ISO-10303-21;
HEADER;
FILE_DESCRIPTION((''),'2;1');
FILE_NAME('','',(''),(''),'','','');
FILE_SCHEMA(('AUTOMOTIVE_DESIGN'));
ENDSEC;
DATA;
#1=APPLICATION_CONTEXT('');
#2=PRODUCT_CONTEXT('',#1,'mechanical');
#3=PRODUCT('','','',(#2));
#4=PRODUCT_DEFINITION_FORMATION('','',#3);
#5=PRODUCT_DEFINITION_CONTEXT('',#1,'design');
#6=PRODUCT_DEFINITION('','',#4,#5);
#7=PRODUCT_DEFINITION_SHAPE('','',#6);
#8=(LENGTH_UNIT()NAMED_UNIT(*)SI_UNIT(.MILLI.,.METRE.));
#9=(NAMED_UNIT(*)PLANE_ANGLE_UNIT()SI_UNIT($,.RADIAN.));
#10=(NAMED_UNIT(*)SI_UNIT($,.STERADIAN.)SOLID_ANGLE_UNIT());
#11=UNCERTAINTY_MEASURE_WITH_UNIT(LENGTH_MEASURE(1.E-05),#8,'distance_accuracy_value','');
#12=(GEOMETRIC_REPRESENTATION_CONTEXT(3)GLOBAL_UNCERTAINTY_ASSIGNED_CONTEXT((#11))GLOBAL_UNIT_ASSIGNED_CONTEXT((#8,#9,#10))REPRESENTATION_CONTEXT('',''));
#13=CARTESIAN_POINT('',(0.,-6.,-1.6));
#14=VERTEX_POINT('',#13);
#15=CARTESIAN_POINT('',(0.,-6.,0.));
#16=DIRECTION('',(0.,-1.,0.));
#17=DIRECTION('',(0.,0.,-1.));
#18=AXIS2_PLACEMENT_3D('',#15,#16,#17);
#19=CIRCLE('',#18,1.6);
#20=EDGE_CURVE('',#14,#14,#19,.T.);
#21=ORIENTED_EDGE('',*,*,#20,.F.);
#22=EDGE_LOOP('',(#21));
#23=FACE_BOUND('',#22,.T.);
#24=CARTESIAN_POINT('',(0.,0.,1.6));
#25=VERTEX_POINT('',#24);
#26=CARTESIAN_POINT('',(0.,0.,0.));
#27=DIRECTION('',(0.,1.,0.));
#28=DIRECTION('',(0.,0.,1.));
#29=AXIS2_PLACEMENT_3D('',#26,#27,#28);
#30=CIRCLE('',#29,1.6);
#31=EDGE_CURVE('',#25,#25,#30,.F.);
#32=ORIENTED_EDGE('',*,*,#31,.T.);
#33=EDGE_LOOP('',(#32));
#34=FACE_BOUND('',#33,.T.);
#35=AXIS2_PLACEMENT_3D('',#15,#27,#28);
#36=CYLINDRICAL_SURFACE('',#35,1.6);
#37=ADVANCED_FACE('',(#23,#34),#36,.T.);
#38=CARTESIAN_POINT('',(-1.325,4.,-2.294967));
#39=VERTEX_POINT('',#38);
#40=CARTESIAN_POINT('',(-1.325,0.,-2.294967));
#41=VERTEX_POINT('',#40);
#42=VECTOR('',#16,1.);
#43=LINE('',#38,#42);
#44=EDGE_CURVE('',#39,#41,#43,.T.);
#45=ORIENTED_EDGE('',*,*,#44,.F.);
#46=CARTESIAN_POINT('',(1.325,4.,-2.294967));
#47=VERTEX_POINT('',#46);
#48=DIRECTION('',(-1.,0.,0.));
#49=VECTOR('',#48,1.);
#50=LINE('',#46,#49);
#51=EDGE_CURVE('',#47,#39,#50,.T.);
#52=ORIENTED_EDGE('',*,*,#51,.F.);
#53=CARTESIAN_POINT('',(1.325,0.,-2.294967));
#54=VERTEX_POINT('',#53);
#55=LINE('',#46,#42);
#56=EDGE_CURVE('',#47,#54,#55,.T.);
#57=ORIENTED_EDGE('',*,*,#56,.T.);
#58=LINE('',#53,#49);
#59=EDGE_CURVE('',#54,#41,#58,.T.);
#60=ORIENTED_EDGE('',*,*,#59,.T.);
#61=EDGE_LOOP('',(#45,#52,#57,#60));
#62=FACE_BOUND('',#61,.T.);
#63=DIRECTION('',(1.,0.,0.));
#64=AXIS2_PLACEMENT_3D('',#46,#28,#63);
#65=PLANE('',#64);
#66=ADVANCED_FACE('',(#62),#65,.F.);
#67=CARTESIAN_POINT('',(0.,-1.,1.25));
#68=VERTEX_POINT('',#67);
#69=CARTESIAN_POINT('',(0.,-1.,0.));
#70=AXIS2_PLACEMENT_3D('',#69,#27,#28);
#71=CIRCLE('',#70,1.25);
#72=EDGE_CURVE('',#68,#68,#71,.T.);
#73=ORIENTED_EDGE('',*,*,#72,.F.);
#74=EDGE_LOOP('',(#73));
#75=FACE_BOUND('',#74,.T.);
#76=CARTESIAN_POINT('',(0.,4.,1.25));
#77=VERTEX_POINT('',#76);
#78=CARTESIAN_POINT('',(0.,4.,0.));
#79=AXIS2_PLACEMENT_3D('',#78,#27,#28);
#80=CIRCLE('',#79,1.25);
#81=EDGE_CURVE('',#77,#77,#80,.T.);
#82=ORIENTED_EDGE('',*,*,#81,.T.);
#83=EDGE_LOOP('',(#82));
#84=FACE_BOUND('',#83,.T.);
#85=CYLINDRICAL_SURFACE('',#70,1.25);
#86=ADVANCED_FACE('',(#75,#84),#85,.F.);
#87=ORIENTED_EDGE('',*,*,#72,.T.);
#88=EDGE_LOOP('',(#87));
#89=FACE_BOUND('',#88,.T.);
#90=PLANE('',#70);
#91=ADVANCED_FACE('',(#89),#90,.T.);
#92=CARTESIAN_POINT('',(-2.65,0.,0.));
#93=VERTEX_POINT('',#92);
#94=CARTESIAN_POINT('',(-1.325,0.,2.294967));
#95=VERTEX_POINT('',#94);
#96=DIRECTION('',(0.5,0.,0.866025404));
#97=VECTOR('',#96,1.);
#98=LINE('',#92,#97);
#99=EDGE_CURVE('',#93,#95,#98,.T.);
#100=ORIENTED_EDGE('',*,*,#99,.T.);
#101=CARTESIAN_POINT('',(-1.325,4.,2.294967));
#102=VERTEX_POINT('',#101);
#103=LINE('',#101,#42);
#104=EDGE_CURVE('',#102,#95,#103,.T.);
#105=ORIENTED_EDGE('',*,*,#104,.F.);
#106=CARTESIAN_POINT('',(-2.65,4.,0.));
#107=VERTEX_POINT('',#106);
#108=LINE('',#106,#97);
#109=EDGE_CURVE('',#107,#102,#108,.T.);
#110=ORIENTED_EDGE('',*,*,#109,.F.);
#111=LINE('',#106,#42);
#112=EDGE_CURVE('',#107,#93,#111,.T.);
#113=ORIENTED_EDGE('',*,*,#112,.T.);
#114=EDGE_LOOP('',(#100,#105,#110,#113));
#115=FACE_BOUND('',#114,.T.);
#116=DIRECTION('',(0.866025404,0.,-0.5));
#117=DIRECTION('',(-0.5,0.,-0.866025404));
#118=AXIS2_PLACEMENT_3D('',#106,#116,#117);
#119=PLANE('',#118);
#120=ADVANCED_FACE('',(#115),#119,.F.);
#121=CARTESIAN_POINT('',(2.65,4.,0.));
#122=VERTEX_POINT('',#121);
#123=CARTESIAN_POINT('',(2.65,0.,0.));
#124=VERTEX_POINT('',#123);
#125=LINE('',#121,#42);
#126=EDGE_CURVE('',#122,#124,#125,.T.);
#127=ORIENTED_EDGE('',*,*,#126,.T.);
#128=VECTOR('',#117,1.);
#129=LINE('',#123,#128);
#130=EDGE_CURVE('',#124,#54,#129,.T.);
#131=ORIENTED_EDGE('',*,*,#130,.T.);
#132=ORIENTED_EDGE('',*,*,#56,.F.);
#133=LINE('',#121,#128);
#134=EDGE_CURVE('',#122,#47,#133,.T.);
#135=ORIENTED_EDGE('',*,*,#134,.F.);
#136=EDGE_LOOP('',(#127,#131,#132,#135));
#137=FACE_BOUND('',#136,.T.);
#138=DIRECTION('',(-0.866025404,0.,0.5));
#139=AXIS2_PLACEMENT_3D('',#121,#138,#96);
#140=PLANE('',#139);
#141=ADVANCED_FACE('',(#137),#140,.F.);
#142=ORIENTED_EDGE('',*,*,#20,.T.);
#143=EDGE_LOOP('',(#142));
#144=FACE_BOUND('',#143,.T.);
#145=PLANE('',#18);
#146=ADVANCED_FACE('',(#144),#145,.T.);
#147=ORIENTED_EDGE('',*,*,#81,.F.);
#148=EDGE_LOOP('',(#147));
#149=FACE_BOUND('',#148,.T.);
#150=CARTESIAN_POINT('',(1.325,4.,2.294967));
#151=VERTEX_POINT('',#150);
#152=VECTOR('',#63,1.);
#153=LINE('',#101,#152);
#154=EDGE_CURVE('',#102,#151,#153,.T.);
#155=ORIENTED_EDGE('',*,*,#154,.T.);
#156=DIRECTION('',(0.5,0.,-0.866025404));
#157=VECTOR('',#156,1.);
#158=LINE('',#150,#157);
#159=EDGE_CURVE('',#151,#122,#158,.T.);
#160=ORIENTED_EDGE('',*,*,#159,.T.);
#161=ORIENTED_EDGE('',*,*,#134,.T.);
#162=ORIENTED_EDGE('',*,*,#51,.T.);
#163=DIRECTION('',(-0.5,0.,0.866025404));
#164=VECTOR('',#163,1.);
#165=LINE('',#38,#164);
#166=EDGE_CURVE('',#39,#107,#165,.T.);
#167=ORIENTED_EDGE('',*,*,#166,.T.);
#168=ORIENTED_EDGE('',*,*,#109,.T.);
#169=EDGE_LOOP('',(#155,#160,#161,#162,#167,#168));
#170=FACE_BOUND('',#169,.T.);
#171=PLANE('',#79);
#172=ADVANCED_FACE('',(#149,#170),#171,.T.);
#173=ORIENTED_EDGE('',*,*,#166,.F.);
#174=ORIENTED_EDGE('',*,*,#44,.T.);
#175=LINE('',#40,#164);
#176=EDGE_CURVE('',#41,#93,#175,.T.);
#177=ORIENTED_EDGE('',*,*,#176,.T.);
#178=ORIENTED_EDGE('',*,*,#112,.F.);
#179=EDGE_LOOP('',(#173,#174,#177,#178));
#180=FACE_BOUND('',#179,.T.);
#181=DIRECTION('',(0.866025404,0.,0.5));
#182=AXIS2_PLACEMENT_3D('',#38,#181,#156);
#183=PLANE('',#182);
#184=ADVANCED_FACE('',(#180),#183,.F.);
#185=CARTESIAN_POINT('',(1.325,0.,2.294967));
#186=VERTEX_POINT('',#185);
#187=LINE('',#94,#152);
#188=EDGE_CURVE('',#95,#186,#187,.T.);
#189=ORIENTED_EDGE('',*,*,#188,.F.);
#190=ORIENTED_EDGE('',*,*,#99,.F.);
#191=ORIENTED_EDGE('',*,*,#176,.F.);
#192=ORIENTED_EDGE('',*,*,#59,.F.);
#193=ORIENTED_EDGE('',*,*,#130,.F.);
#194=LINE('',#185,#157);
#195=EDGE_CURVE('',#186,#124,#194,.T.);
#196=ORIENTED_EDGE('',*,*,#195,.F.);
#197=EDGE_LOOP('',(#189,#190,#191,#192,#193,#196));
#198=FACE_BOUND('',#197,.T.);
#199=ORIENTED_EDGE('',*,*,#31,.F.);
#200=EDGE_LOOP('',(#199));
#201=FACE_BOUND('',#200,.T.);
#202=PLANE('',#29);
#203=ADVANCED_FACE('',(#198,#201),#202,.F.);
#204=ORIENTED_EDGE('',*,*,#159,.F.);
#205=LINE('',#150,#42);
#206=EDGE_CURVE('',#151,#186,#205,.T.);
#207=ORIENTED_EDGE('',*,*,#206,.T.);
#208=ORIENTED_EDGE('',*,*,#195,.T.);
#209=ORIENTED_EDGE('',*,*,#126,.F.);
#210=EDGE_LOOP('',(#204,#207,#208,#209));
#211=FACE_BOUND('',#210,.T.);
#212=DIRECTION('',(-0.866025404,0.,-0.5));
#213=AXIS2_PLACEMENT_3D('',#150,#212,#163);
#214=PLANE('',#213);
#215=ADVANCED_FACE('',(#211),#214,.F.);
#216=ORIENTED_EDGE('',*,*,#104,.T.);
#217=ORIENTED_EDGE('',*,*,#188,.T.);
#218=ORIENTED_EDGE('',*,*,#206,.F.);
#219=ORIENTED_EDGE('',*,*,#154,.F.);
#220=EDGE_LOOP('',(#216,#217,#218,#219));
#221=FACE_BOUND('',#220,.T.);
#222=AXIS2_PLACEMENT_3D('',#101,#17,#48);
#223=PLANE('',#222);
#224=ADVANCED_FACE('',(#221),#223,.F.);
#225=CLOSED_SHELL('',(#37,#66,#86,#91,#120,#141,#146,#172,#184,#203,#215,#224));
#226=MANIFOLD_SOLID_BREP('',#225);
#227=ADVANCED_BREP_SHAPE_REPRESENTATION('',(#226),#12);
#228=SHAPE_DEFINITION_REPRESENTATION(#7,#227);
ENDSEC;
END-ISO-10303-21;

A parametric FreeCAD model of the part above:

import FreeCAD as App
import Part
import Sketcher

V = App.Vector
Q = App.Units.Quantity

doc = App.newDocument("Part")
body = doc.addObject("PartDesign::Body", "Body")

# Sketch on XZ plane
sketch1 = body.newObject("Sketcher::SketchObject", "Sketch")
sketch1.AttachmentSupport = (doc.getObject("XZ_Plane"), [""])
sketch1.MapMode = "FlatFace"
sketch1.addGeometry([
    Part.LineSegment(V(1.325, 2.294967, 0), V(2.65, 0, 0)),  # 0
    Part.LineSegment(V(2.65, 0, 0), V(1.325, -2.294967, 0)),  # 1
    Part.LineSegment(V(1.325, -2.294967, 0), V(-1.325, -2.294967, 0)),  # 2
    Part.LineSegment(V(-1.325, -2.294967, 0), V(-2.65, 0, 0)),  # 3
    Part.LineSegment(V(-2.65, 0, 0), V(-1.325, 2.294967, 0)),  # 4
    Part.LineSegment(V(-1.325, 2.294967, 0), V(1.325, 2.294967, 0)),  # 5
], False)
sketch1.addConstraint([
    Sketcher.Constraint("Coincident", 0, 2, 1, 1),
    Sketcher.Constraint("Coincident", 1, 2, 2, 1),
    Sketcher.Constraint("Coincident", 2, 2, 3, 1),
    Sketcher.Constraint("Coincident", 3, 2, 4, 1),
    Sketcher.Constraint("Coincident", 4, 2, 5, 1),
    Sketcher.Constraint("Coincident", 5, 2, 0, 1),
    Sketcher.Constraint("Horizontal", 2),
    Sketcher.Constraint("Horizontal", 5),
    Sketcher.Constraint("Symmetric", 0, 2, 3, 2, -1, 1),
    Sketcher.Constraint("Symmetric", 1, 2, 4, 2, -1, 1),
    Sketcher.Constraint("PointOnObject", 0, 2, -1),
    Sketcher.Constraint("Parallel", 0, 3),
    Sketcher.Constraint("Vertical", 2, 2, 4, 2),
    Sketcher.Constraint("Angle", 0, Q("-60 deg")),
    Sketcher.Constraint("DistanceX", 2, 2, 2, 1, Q("2.65 mm")),
    Sketcher.Constraint("DistanceX", 3, 2, 0, 2, Q("5.3 mm")),
])
pad1 = body.newObject("PartDesign::Pad", "Pad")
pad1.Profile = sketch1
pad1.Length = 4
pad1.Reversed = True

# Sketch on XZ plane
sketch2 = body.newObject("Sketcher::SketchObject", "Sketch001")
sketch2.AttachmentSupport = (doc.getObject("XZ_Plane"), [""])
sketch2.MapMode = "FlatFace"
sketch2.addGeometry(Part.Circle(V(0, 0, 0), V(0, 0, 1), 1.6), False)
sketch2.addConstraint([
    Sketcher.Constraint("Coincident", 0, 3, -1, 1),
    Sketcher.Constraint("Diameter", 0, Q("3.2 mm")),
])
pad2 = body.newObject("PartDesign::Pad", "Pad001")
pad2.Profile = sketch2
pad2.Length = 6

# Sketch on XZ plane
sketch3 = body.newObject("Sketcher::SketchObject", "Sketch002")
sketch3.AttachmentSupport = (doc.getObject("XZ_Plane"), [""])
sketch3.MapMode = "FlatFace"
sketch3.AttachmentOffset = App.Placement(V(0, 0, -4), App.Rotation())
sketch3.addGeometry(Part.Circle(V(0, 0, 0), V(0, 0, 1), 1.25), False)
sketch3.addConstraint([
    Sketcher.Constraint("Coincident", 0, 3, -1, 1),
    Sketcher.Constraint("Diameter", 0, Q("2.5 mm")),
])
pocket1 = body.newObject("PartDesign::Pocket", "Pocket")
pocket1.Profile = sketch3
pocket1.Length = 5
pocket1.Reversed = True

doc.recompute()
